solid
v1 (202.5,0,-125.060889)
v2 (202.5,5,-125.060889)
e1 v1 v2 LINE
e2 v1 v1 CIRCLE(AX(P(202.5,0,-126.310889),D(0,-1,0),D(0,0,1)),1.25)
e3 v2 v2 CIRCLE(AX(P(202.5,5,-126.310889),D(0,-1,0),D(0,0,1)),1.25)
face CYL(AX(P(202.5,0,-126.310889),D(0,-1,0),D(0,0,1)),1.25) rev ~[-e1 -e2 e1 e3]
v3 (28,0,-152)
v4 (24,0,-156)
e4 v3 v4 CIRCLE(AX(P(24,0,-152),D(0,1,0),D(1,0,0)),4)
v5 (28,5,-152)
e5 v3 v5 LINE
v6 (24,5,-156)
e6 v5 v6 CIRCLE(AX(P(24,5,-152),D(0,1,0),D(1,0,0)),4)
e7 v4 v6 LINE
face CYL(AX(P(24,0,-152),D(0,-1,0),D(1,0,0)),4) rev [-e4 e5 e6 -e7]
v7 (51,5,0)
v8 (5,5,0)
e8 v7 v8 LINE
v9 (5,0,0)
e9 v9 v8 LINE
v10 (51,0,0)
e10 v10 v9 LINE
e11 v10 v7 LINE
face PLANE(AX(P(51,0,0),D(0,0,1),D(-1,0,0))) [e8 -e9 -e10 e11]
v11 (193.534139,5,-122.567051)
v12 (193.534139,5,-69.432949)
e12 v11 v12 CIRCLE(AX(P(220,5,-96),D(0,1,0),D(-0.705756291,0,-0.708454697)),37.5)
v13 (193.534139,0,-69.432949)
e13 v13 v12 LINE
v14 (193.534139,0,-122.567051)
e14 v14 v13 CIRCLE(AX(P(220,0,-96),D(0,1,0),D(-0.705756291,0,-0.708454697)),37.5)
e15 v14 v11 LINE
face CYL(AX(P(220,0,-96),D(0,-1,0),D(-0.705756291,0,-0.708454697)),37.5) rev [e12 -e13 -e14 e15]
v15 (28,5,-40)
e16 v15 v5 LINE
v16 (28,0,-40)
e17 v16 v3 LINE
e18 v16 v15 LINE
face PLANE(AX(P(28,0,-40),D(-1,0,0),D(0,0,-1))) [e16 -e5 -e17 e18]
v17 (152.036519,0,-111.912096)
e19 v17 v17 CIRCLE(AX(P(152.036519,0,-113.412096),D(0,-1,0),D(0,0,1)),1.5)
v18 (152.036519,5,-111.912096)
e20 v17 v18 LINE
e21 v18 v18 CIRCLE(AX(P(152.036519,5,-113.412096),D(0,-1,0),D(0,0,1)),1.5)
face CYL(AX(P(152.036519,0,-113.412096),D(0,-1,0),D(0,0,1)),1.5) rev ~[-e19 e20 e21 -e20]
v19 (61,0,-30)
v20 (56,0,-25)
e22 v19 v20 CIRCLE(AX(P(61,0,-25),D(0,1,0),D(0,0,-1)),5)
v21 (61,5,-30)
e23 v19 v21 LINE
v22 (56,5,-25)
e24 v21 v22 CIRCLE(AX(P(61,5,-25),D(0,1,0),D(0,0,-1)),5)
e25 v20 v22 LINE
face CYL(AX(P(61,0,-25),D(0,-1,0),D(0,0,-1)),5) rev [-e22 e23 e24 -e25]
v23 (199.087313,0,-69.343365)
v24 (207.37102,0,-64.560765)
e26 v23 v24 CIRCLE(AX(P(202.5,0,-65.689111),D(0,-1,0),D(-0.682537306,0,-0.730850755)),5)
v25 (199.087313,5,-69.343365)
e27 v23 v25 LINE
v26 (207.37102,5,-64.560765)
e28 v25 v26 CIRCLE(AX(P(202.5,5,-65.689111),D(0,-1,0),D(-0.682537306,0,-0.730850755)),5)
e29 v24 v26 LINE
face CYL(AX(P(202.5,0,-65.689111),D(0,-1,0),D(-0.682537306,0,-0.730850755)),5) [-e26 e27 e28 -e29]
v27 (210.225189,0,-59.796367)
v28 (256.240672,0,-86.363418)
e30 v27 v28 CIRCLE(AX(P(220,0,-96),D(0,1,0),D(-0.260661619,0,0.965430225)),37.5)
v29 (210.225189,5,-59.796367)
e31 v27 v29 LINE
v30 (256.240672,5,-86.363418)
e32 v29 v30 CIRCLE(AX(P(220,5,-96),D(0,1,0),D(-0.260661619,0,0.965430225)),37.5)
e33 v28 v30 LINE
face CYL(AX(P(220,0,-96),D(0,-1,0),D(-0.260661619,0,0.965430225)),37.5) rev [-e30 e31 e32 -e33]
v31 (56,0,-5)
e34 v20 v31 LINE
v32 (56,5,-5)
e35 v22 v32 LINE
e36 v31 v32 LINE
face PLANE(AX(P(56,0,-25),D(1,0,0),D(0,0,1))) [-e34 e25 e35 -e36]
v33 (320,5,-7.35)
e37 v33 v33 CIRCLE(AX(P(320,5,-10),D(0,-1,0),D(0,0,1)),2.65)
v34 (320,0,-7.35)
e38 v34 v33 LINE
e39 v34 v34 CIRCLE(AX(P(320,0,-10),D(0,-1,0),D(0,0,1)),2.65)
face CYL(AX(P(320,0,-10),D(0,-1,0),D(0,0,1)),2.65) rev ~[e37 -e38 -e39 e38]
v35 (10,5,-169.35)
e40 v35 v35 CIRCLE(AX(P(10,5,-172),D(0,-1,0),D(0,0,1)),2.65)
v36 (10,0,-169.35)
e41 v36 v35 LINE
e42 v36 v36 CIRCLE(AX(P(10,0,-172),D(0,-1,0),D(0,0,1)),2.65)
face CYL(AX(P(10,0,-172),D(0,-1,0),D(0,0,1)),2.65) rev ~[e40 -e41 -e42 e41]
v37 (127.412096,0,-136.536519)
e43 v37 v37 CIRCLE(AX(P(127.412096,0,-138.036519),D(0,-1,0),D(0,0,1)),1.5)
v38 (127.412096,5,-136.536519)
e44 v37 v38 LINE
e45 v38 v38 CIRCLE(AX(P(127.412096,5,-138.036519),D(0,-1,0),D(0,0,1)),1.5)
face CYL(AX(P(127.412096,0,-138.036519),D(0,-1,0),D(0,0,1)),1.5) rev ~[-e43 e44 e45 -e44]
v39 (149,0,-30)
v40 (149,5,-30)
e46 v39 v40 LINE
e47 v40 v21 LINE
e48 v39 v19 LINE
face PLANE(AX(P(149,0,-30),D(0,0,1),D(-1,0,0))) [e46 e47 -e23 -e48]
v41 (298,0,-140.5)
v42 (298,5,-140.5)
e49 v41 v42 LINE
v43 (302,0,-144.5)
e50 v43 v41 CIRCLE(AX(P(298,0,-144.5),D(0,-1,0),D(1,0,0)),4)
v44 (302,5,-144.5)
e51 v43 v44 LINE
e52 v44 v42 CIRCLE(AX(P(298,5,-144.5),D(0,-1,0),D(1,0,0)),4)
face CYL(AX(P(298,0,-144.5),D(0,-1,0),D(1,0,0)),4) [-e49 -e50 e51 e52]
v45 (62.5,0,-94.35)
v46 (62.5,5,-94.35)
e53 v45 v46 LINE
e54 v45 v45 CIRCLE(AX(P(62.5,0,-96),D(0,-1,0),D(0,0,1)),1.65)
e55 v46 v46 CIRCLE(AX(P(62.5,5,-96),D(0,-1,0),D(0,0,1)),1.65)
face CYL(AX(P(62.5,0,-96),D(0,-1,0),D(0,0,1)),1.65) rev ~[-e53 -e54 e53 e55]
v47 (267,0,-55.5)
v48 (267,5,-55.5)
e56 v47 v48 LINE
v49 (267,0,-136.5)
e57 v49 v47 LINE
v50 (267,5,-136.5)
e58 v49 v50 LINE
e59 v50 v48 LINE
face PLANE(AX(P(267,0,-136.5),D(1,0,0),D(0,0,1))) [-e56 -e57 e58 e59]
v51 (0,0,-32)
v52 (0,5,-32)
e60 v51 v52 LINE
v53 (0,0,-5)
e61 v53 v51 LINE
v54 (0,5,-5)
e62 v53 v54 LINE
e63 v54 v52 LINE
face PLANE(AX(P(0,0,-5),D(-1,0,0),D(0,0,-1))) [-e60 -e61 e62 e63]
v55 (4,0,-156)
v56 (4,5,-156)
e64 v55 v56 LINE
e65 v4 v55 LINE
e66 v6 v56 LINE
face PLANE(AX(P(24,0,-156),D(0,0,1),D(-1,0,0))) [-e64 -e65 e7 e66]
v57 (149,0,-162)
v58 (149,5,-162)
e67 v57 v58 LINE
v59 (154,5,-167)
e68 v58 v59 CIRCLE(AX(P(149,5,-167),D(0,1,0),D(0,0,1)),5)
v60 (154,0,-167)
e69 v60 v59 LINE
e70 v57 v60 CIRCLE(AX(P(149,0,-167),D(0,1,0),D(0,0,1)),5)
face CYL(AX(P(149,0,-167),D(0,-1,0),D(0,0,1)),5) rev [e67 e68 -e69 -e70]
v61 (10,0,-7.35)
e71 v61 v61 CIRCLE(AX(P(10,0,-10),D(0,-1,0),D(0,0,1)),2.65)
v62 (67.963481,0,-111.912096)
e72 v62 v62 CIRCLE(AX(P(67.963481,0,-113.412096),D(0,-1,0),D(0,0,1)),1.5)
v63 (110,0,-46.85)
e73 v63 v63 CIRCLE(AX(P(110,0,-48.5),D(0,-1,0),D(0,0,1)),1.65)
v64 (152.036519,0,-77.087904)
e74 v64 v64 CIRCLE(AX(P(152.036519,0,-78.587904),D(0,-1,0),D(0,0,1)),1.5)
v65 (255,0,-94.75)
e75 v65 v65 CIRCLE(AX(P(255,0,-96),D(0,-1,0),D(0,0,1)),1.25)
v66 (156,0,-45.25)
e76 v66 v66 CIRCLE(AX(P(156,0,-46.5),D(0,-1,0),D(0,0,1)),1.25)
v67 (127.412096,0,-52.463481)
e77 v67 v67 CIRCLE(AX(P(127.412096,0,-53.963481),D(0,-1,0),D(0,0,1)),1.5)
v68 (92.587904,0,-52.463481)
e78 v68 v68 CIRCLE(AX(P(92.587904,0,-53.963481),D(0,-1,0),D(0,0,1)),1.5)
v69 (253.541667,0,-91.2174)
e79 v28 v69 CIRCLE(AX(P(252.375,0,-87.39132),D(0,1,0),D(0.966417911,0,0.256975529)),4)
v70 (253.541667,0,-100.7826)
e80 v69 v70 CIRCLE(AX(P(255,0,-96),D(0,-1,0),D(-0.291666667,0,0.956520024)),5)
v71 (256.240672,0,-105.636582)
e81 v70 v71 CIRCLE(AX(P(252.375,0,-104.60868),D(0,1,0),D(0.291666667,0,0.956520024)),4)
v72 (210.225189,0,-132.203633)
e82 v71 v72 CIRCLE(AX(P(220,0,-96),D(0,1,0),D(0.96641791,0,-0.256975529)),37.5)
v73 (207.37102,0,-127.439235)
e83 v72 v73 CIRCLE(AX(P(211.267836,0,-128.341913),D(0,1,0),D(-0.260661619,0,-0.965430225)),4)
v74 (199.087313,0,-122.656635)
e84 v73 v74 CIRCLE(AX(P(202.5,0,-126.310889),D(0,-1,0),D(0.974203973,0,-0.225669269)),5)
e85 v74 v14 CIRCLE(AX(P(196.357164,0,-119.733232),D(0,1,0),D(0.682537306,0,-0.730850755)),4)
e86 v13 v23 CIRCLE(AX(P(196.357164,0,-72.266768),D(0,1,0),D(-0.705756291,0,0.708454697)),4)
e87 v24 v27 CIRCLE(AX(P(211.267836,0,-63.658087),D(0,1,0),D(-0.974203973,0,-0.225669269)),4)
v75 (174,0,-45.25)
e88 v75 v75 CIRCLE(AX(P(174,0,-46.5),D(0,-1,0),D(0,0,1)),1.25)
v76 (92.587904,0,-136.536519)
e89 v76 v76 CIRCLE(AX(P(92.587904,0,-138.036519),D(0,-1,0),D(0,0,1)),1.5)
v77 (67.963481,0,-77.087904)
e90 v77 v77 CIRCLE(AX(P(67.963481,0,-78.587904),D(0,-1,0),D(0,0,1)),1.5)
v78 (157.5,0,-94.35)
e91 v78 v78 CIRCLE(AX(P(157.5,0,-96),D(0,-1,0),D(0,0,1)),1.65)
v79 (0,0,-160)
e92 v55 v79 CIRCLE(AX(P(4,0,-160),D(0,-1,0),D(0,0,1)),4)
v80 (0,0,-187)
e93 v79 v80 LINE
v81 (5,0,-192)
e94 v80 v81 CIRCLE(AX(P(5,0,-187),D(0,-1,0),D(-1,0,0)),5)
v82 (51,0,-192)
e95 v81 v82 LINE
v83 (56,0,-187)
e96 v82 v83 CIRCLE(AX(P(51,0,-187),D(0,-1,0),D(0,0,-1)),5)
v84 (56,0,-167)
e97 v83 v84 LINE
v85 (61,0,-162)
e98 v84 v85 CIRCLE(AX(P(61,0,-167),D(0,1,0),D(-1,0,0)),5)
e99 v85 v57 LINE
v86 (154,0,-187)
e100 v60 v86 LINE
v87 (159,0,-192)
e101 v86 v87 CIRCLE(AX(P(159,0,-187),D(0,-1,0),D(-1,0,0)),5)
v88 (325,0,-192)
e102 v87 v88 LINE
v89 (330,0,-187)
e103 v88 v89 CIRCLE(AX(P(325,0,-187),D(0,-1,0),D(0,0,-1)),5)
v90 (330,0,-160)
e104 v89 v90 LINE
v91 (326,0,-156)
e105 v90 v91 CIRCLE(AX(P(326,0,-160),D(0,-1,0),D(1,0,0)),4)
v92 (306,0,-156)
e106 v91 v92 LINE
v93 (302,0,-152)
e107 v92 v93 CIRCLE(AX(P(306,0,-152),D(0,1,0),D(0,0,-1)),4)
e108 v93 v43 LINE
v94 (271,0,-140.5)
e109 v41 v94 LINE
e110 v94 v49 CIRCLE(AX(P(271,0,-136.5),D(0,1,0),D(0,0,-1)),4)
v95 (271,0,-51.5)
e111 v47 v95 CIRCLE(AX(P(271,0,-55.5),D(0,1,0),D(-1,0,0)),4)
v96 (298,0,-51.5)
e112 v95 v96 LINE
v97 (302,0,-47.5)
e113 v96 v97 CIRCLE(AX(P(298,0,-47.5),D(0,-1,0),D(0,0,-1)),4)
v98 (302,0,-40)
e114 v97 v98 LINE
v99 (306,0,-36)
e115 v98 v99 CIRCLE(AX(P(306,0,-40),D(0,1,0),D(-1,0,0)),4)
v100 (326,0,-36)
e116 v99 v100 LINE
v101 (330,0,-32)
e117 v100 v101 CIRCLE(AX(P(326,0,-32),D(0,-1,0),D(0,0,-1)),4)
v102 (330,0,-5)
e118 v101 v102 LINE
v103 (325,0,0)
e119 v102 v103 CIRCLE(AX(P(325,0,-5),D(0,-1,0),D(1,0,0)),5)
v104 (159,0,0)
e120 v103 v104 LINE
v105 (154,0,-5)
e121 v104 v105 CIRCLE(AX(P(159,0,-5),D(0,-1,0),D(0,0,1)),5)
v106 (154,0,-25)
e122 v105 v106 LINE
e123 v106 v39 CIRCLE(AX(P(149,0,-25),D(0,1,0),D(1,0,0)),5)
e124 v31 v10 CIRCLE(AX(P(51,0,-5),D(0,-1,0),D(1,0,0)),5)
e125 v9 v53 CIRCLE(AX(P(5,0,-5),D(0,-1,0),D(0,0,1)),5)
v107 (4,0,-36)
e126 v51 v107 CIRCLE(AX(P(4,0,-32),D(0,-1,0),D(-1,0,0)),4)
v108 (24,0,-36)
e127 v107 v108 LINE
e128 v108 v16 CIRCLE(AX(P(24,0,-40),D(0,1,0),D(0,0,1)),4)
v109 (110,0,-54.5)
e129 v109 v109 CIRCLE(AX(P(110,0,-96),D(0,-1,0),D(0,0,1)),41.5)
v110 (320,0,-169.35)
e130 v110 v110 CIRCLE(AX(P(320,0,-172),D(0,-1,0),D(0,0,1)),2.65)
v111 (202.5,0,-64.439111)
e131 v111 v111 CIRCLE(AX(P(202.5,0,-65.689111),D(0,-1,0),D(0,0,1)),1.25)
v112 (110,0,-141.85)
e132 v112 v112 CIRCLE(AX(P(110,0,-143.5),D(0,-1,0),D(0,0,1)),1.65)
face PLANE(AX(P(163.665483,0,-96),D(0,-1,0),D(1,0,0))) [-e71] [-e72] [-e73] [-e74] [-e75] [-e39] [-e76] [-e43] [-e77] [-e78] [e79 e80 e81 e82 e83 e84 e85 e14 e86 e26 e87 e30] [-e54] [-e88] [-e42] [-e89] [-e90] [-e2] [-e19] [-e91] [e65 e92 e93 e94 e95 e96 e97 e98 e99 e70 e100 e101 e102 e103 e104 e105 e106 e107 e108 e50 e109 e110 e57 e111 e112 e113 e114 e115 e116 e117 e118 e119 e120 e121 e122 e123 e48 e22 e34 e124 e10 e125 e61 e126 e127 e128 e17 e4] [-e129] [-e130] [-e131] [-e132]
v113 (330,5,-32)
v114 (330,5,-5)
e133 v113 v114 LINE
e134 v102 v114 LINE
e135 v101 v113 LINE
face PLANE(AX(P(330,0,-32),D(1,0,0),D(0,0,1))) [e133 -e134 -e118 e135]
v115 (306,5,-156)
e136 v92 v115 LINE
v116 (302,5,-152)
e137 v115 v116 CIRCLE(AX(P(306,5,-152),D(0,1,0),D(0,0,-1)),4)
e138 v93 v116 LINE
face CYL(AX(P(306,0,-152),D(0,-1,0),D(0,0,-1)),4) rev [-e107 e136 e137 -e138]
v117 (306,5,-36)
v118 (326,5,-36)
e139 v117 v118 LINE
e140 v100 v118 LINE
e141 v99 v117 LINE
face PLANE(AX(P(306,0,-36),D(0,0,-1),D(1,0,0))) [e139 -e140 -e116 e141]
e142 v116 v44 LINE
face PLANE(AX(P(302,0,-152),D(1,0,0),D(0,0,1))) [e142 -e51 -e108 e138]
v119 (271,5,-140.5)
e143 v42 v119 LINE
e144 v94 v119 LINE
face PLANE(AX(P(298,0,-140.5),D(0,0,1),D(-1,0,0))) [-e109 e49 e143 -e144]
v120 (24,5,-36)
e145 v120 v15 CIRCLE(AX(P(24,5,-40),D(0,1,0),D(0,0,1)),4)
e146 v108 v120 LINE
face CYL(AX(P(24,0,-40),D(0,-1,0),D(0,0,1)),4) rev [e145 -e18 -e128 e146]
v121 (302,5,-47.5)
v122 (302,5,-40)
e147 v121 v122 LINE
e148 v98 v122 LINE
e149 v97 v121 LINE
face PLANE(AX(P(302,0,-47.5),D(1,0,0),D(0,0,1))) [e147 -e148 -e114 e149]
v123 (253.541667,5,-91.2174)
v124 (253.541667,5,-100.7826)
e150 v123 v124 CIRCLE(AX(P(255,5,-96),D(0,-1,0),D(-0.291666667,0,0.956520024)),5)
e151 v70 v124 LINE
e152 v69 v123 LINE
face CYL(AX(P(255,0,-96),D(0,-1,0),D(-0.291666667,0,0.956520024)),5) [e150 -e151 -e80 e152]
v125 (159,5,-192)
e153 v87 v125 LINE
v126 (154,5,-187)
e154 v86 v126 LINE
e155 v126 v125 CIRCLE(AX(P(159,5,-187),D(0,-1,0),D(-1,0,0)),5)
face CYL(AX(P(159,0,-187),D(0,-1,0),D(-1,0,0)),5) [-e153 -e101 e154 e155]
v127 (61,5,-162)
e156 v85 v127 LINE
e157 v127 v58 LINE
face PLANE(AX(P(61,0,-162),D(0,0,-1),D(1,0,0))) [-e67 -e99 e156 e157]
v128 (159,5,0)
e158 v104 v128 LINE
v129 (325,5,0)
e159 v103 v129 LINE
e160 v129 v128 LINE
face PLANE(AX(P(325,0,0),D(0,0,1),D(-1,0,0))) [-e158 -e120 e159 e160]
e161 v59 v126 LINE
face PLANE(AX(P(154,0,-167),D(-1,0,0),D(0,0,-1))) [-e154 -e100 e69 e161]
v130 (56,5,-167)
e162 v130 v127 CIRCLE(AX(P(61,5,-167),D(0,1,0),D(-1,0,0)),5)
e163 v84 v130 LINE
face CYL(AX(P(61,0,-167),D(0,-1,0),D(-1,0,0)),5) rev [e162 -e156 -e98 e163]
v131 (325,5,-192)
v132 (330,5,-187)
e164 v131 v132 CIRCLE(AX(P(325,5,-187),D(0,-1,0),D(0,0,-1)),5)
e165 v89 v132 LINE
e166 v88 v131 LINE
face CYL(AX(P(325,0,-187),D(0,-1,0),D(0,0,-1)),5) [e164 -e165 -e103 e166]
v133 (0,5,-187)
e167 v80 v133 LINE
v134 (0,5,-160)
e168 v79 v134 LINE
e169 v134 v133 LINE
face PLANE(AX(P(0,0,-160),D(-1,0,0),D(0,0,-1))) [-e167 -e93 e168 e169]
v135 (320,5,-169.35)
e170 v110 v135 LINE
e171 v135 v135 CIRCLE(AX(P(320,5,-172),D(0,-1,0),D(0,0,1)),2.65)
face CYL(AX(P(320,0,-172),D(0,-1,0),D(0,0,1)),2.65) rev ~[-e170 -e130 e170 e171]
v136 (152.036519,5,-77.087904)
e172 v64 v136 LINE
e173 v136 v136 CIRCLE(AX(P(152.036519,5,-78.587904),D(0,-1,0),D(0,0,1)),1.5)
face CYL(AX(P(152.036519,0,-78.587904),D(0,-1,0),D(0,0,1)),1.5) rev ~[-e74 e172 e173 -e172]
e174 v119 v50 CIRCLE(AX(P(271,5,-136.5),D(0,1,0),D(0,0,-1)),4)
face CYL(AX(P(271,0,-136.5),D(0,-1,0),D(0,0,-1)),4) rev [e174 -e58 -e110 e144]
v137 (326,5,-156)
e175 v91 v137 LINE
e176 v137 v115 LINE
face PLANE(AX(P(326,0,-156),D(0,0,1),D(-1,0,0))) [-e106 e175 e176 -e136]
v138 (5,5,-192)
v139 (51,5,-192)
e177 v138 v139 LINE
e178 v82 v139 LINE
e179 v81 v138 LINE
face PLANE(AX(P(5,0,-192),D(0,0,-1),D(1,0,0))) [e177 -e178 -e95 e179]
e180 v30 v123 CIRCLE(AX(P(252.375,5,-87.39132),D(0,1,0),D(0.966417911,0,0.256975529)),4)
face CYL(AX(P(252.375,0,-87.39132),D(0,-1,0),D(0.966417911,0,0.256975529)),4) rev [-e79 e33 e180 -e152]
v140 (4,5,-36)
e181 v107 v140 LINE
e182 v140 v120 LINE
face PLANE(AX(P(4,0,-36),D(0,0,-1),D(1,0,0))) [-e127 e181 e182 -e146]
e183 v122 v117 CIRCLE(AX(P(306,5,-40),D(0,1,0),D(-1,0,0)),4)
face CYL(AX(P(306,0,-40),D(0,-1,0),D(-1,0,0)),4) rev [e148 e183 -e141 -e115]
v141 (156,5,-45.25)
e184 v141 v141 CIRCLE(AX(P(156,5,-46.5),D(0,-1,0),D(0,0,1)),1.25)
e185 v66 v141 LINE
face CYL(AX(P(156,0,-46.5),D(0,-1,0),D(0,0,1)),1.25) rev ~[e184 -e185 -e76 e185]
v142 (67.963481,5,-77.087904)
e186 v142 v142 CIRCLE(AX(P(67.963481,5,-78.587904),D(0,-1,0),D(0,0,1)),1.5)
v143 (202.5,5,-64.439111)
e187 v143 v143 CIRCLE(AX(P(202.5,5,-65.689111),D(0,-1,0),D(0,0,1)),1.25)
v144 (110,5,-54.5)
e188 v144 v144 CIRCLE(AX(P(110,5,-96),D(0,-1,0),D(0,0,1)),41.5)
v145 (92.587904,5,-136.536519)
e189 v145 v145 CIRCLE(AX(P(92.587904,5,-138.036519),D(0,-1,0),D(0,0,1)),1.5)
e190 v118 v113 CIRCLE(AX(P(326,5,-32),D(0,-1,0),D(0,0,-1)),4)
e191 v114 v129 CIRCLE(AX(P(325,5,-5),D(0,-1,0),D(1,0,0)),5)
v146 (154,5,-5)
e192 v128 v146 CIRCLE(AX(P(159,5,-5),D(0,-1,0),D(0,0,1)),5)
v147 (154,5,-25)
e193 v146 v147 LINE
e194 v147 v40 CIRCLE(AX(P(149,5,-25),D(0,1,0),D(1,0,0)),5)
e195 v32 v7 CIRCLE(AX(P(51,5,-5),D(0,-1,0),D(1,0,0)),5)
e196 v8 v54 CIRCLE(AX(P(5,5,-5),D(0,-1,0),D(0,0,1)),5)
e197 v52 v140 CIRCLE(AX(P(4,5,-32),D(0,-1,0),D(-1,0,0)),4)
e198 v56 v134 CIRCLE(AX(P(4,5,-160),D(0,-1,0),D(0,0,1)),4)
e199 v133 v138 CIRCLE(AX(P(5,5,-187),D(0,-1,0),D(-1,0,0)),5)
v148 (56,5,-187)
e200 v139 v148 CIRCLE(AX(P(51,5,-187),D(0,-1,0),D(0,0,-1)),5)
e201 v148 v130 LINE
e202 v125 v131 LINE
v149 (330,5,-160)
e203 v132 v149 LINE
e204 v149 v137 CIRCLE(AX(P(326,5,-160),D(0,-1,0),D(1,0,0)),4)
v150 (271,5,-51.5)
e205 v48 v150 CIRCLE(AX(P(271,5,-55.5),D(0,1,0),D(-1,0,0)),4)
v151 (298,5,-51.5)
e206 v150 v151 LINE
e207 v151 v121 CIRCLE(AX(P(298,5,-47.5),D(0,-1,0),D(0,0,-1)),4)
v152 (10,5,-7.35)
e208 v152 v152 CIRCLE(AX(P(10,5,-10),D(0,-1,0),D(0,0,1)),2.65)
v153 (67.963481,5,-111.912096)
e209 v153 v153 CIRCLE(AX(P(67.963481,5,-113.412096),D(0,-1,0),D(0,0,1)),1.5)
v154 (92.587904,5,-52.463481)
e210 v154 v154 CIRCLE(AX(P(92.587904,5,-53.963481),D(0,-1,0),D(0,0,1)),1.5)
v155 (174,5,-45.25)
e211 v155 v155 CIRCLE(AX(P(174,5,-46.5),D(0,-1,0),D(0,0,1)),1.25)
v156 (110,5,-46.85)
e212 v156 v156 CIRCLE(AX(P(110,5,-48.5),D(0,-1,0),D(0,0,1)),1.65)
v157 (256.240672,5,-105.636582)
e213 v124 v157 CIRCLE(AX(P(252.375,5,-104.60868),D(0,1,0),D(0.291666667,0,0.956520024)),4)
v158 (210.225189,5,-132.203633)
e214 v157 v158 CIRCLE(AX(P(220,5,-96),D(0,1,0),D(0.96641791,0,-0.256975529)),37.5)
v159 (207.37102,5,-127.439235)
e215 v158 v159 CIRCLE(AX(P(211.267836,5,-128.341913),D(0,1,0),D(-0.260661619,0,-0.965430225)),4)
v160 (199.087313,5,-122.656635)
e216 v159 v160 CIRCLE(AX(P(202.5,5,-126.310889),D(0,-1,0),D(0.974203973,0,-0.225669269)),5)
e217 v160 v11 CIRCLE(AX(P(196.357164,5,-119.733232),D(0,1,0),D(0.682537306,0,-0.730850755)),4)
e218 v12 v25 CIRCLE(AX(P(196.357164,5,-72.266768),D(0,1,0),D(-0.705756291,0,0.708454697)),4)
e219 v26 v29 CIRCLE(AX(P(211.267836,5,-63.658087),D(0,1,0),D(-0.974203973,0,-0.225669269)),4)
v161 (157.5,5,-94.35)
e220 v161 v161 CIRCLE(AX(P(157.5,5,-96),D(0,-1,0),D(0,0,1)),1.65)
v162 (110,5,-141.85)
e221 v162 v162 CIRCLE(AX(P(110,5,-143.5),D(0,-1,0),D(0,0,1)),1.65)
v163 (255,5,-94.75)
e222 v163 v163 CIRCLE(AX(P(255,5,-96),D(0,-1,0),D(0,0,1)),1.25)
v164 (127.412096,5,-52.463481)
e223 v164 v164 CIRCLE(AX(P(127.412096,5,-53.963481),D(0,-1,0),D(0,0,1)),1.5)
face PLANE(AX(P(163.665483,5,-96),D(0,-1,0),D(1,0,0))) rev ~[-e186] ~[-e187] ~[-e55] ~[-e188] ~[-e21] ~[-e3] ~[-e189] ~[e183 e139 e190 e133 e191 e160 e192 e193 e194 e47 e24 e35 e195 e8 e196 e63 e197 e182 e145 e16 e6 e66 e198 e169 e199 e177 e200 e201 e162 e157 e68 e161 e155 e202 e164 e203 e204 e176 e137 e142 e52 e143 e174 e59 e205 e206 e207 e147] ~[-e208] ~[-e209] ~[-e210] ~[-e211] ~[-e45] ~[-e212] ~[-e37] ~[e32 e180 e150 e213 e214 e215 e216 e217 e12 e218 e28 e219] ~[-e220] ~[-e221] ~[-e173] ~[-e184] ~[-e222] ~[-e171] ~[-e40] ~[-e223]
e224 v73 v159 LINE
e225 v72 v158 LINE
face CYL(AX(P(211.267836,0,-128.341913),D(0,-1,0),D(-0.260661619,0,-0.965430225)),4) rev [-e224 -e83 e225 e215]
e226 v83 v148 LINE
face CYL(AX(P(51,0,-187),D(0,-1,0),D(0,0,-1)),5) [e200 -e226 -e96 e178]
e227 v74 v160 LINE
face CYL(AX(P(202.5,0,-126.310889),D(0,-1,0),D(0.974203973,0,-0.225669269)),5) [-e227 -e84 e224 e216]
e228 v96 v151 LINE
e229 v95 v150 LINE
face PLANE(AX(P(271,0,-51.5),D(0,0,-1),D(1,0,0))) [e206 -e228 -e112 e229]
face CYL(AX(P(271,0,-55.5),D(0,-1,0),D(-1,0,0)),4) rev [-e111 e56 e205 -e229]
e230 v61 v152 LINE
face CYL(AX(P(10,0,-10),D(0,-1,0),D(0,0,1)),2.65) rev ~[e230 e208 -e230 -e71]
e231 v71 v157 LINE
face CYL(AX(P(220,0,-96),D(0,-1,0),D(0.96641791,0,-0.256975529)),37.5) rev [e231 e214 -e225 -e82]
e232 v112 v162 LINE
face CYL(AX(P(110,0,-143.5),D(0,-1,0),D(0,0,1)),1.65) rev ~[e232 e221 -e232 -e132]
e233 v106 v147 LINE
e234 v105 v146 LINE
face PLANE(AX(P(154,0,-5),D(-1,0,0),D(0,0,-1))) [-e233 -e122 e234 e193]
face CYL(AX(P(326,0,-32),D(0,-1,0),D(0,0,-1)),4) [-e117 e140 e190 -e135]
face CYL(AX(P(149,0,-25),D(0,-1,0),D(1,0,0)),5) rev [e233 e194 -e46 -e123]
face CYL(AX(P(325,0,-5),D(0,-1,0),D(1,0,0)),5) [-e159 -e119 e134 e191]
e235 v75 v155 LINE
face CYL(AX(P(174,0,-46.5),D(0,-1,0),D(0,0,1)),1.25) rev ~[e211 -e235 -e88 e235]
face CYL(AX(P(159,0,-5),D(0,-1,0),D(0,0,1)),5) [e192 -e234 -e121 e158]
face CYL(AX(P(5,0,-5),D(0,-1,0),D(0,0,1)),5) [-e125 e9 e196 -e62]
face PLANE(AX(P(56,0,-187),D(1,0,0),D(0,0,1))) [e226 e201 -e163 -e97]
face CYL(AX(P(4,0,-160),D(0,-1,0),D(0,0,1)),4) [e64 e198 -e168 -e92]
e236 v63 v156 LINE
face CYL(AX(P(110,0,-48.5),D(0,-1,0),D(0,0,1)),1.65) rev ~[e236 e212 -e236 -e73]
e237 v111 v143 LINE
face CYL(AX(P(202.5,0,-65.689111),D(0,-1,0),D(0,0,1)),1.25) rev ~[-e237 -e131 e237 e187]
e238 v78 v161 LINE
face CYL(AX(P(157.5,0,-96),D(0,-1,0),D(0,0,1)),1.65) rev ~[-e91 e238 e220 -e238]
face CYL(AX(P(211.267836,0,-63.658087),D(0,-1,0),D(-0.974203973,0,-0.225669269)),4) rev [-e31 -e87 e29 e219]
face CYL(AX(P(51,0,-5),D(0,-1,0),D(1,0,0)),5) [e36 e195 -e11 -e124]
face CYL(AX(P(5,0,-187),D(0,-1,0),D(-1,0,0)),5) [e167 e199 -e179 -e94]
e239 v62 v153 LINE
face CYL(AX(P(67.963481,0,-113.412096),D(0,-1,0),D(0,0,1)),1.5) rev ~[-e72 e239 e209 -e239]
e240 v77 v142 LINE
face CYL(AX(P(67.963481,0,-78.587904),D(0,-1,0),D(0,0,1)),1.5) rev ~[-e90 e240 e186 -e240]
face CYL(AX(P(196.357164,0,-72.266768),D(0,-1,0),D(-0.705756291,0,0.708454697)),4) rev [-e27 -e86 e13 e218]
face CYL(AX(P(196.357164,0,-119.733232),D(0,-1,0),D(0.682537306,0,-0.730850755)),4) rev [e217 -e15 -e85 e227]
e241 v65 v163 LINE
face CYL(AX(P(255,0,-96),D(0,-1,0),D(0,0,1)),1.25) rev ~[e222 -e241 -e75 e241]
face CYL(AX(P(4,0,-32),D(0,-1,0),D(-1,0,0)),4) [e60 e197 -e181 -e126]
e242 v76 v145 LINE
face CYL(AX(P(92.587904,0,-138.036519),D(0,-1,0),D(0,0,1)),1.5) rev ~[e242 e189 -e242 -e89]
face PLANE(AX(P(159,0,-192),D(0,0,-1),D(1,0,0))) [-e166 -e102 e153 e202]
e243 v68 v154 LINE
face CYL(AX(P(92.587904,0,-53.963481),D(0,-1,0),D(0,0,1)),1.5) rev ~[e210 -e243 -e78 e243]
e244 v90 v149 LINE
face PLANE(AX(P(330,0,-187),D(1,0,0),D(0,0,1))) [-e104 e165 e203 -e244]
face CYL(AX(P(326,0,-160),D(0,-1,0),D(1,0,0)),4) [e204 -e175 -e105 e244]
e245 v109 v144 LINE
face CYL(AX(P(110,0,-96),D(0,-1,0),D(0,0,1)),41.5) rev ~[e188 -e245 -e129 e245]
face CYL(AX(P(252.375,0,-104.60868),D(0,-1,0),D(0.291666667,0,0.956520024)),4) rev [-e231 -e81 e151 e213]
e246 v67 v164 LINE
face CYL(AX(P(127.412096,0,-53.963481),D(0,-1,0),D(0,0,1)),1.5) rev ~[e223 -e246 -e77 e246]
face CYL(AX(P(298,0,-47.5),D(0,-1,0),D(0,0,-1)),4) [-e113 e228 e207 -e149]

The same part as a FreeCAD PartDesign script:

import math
import FreeCAD as App
import Part
import Sketcher

V = App.Vector

doc = App.newDocument("Part")
body = doc.addObject("PartDesign::Body", "Body")

sketch1 = body.newObject("Sketcher::SketchObject", "Sketch")
sketch1.AttachmentSupport = (doc.getObject("XZ_Plane"), [""])
sketch1.MapMode = "FlatFace"
sketch1.addGeometry(Part.LineSegment(V(159, -192, 0), V(325, -192, 0)), False)
sketch1.addGeometry(Part.ArcOfCircle(Part.Circle(V(325, -187, 0), V(0, 0, 1), 5), math.radians(-90), math.radians(0)), False)
sketch1.addGeometry(Part.LineSegment(V(330, -187, 0), V(330, -160, 0)), False)
sketch1.addGeometry(Part.ArcOfCircle(Part.Circle(V(326, -160, 0), V(0, 0, 1), 4), math.radians(0), math.radians(90)), False)
sketch1.addGeometry(Part.LineSegment(V(326, -156, 0), V(306, -156, 0)), False)
sketch1.addGeometry(Part.ArcOfCircle(Part.Circle(V(306, -152, 0), V(0, 0, 1), 4), math.radians(180), math.radians(270)), False)
sketch1.addGeometry(Part.LineSegment(V(302, -152, 0), V(302, -144.5, 0)), False)
sketch1.addGeometry(Part.ArcOfCircle(Part.Circle(V(298, -144.5, 0), V(0, 0, 1), 4), math.radians(0), math.radians(90)), False)
sketch1.addGeometry(Part.LineSegment(V(298, -140.5, 0), V(271, -140.5, 0)), False)
sketch1.addGeometry(Part.ArcOfCircle(Part.Circle(V(271, -136.5, 0), V(0, 0, 1), 4), math.radians(180), math.radians(270)), False)
sketch1.addGeometry(Part.LineSegment(V(267, -136.5, 0), V(267, -55.5, 0)), False)
sketch1.addGeometry(Part.ArcOfCircle(Part.Circle(V(271, -55.5, 0), V(0, 0, 1), 4), math.radians(90), math.radians(180)), False)
sketch1.addGeometry(Part.LineSegment(V(271, -51.5, 0), V(298, -51.5, 0)), False)
sketch1.addGeometry(Part.ArcOfCircle(Part.Circle(V(298, -47.5, 0), V(0, 0, 1), 4), math.radians(-90), math.radians(0)), False)
sketch1.addGeometry(Part.LineSegment(V(302, -47.5, 0), V(302, -40, 0)), False)
sketch1.addGeometry(Part.ArcOfCircle(Part.Circle(V(306, -40, 0), V(0, 0, 1), 4), math.radians(90), math.radians(180)), False)
sketch1.addGeometry(Part.LineSegment(V(306, -36, 0), V(326, -36, 0)), False)
sketch1.addGeometry(Part.ArcOfCircle(Part.Circle(V(326, -32, 0), V(0, 0, 1), 4), math.radians(-90), math.radians(0)), False)
sketch1.addGeometry(Part.LineSegment(V(330, -32, 0), V(330, -5, 0)), False)
sketch1.addGeometry(Part.ArcOfCircle(Part.Circle(V(325, -5, 0), V(0, 0, 1), 5), math.radians(0), math.radians(90)), False)
sketch1.addGeometry(Part.LineSegment(V(325, 0, 0), V(159, 0, 0)), False)
sketch1.addGeometry(Part.ArcOfCircle(Part.Circle(V(159, -5, 0), V(0, 0, 1), 5), math.radians(90), math.radians(180)), False)
sketch1.addGeometry(Part.LineSegment(V(154, -5, 0), V(154, -25, 0)), False)
sketch1.addGeometry(Part.ArcOfCircle(Part.Circle(V(149, -25, 0), V(0, 0, 1), 5), math.radians(-90), math.radians(0)), False)
sketch1.addGeometry(Part.LineSegment(V(149, -30, 0), V(61, -30, 0)), False)
sketch1.addGeometry(Part.ArcOfCircle(Part.Circle(V(61, -25, 0), V(0, 0, 1), 5), math.radians(180), math.radians(270)), False)
sketch1.addGeometry(Part.LineSegment(V(56, -25, 0), V(56, -5, 0)), False)
sketch1.addGeometry(Part.ArcOfCircle(Part.Circle(V(51, -5, 0), V(0, 0, 1), 5), math.radians(0), math.radians(90)), False)
sketch1.addGeometry(Part.LineSegment(V(51, 0, 0), V(5, 0, 0)), False)
sketch1.addGeometry(Part.ArcOfCircle(Part.Circle(V(5, -5, 0), V(0, 0, 1), 5), math.radians(90), math.radians(180)), False)
sketch1.addGeometry(Part.LineSegment(V(0, -5, 0), V(0, -32, 0)), False)
sketch1.addGeometry(Part.ArcOfCircle(Part.Circle(V(4, -32, 0), V(0, 0, 1), 4), math.radians(180), math.radians(270)), False)
sketch1.addGeometry(Part.LineSegment(V(4, -36, 0), V(24, -36, 0)), False)
sketch1.addGeometry(Part.ArcOfCircle(Part.Circle(V(24, -40, 0), V(0, 0, 1), 4), math.radians(0), math.radians(90)), False)
sketch1.addGeometry(Part.LineSegment(V(28, -40, 0), V(28, -152, 0)), False)
sketch1.addGeometry(Part.ArcOfCircle(Part.Circle(V(24, -152, 0), V(0, 0, 1), 4), math.radians(-90), math.radians(0)), False)
sketch1.addGeometry(Part.LineSegment(V(24, -156, 0), V(4, -156, 0)), False)
sketch1.addGeometry(Part.ArcOfCircle(Part.Circle(V(4, -160, 0), V(0, 0, 1), 4), math.radians(90), math.radians(180)), False)
sketch1.addGeometry(Part.LineSegment(V(0, -160, 0), V(0, -187, 0)), False)
sketch1.addGeometry(Part.ArcOfCircle(Part.Circle(V(5, -187, 0), V(0, 0, 1), 5), math.radians(180), math.radians(270)), False)
sketch1.addGeometry(Part.LineSegment(V(5, -192, 0), V(51, -192, 0)), False)
sketch1.addGeometry(Part.ArcOfCircle(Part.Circle(V(51, -187, 0), V(0, 0, 1), 5), math.radians(-90), math.radians(0)), False)
sketch1.addGeometry(Part.LineSegment(V(56, -187, 0), V(56, -167, 0)), False)
sketch1.addGeometry(Part.ArcOfCircle(Part.Circle(V(61, -167, 0), V(0, 0, 1), 5), math.radians(90), math.radians(180)), False)
sketch1.addGeometry(Part.LineSegment(V(61, -162, 0), V(149, -162, 0)), False)
sketch1.addGeometry(Part.ArcOfCircle(Part.Circle(V(149, -167, 0), V(0, 0, 1), 5), math.radians(0), math.radians(90)), False)
sketch1.addGeometry(Part.LineSegment(V(154, -167, 0), V(154, -187, 0)), False)
sketch1.addGeometry(Part.ArcOfCircle(Part.Circle(V(159, -187, 0), V(0, 0, 1), 5), math.radians(180), math.radians(270)), False)
sketch1.addGeometry(Part.Circle(V(10, -172, 0), V(0, 0, 1), 2.6), False)
sketch1.addGeometry(Part.Circle(V(110, -143.5, 0), V(0, 0, 1), 1.6), False)
sketch1.addGeometry(Part.Circle(V(92.6, -138, 0), V(0, 0, 1), 1.5), False)
sketch1.addGeometry(Part.Circle(V(127.4, -138, 0), V(0, 0, 1), 1.5), False)
sketch1.addGeometry(Part.Circle(V(68, -113.4, 0), V(0, 0, 1), 1.5), False)
sketch1.addGeometry(Part.Circle(V(62.5, -96, 0), V(0, 0, 1), 1.6), False)
sketch1.addGeometry(Part.Circle(V(152, -113.4, 0), V(0, 0, 1), 1.5), False)
sketch1.addGeometry(Part.Circle(V(110, -96, 0), V(0, 0, 1), 41.5), False)
sketch1.addGeometry(Part.Circle(V(157.5, -96, 0), V(0, 0, 1), 1.6), False)
sketch1.addGeometry(Part.Circle(V(320, -172, 0), V(0, 0, 1), 2.6), False)
sketch1.addGeometry(Part.Circle(V(202.5, -126.3, 0), V(0, 0, 1), 1.2), False)
sketch1.addGeometry(Part.ArcOfCircle(Part.Circle(V(211.3, -63.7, 0), V(0, 0, 1), 4), math.radians(105), math.radians(193)), False)
sketch1.addGeometry(Part.ArcOfCircle(Part.Circle(V(220, -96, 0), V(0, 0, 1), 37.5), math.radians(15), math.radians(105)), False)
sketch1.addGeometry(Part.ArcOfCircle(Part.Circle(V(252.4, -87.4, 0), V(0, 0, 1), 4), math.radians(-73), math.radians(15)), False)
sketch1.addGeometry(Part.ArcOfCircle(Part.Circle(V(255, -96, 0), V(0, 0, 1), 5), math.radians(107), math.radians(253)), False)
sketch1.addGeometry(Part.ArcOfCircle(Part.Circle(V(252.4, -104.6, 0), V(0, 0, 1), 4), math.radians(-15), math.radians(73)), False)
sketch1.addGeometry(Part.ArcOfCircle(Part.Circle(V(220, -96, 0), V(0, 0, 1), 37.5), math.radians(-105), math.radians(-15)), False)
sketch1.addGeometry(Part.ArcOfCircle(Part.Circle(V(211.3, -128.3, 0), V(0, 0, 1), 4), math.radians(167), math.radians(255)), False)
sketch1.addGeometry(Part.ArcOfCircle(Part.Circle(V(202.5, -126.3, 0), V(0, 0, 1), 5), math.radians(-13), math.radians(133)), False)
sketch1.addGeometry(Part.ArcOfCircle(Part.Circle(V(196.4, -119.7, 0), V(0, 0, 1), 4), math.radians(-135), math.radians(-47)), False)
sketch1.addGeometry(Part.ArcOfCircle(Part.Circle(V(220, -96, 0), V(0, 0, 1), 37.5), math.radians(135), math.radians(225)), False)
sketch1.addGeometry(Part.ArcOfCircle(Part.Circle(V(196.4, -72.3, 0), V(0, 0, 1), 4), math.radians(47), math.radians(135)), False)
sketch1.addGeometry(Part.ArcOfCircle(Part.Circle(V(202.5, -65.7, 0), V(0, 0, 1), 5), math.radians(-133), math.radians(13)), False)
sketch1.addGeometry(Part.Circle(V(255, -96, 0), V(0, 0, 1), 1.2), False)
sketch1.addGeometry(Part.Circle(V(68, -78.6, 0), V(0, 0, 1), 1.5), False)
sketch1.addGeometry(Part.Circle(V(152, -78.6, 0), V(0, 0, 1), 1.5), False)
sketch1.addGeometry(Part.Circle(V(92.6, -54, 0), V(0, 0, 1), 1.5), False)
sketch1.addGeometry(Part.Circle(V(127.4, -54, 0), V(0, 0, 1), 1.5), False)
sketch1.addGeometry(Part.Circle(V(10, -10, 0), V(0, 0, 1), 2.6), False)
sketch1.addGeometry(Part.Circle(V(110, -48.5, 0), V(0, 0, 1), 1.6), False)
sketch1.addGeometry(Part.Circle(V(156, -46.5, 0), V(0, 0, 1), 1.2), False)
sketch1.addGeometry(Part.Circle(V(202.5, -65.7, 0), V(0, 0, 1), 1.2), False)
sketch1.addGeometry(Part.Circle(V(174, -46.5, 0), V(0, 0, 1), 1.2), False)
sketch1.addGeometry(Part.Circle(V(320, -10, 0), V(0, 0, 1), 2.6), False)
sketch1.addConstraint(Sketcher.Constraint("Tangent", 0, 2, 1, 1))
sketch1.addConstraint(Sketcher.Constraint("Tangent", 1, 2, 2, 1))
sketch1.addConstraint(Sketcher.Constraint("Tangent", 2, 2, 3, 1))
sketch1.addConstraint(Sketcher.Constraint("Tangent", 3, 2, 4, 1))
sketch1.addConstraint(Sketcher.Constraint("Tangent", 4, 2, 5, 2))
sketch1.addConstraint(Sketcher.Constraint("Tangent", 5, 1, 6, 1))
sketch1.addConstraint(Sketcher.Constraint("Tangent", 6, 2, 7, 1))
sketch1.addConstraint(Sketcher.Constraint("Tangent", 7, 2, 8, 1))
sketch1.addConstraint(Sketcher.Constraint("Tangent", 8, 2, 9, 2))
sketch1.addConstraint(Sketcher.Constraint("Tangent", 9, 1, 10, 1))
sketch1.addConstraint(Sketcher.Constraint("Tangent", 10, 2, 11, 2))
sketch1.addConstraint(Sketcher.Constraint("Tangent", 11, 1, 12, 1))
sketch1.addConstraint(Sketcher.Constraint("Tangent", 12, 2, 13, 1))
sketch1.addConstraint(Sketcher.Constraint("Tangent", 13, 2, 14, 1))
sketch1.addConstraint(Sketcher.Constraint("Tangent", 14, 2, 15, 2))
sketch1.addConstraint(Sketcher.Constraint("Tangent", 15, 1, 16, 1))
sketch1.addConstraint(Sketcher.Constraint("Tangent", 16, 2, 17, 1))
sketch1.addConstraint(Sketcher.Constraint("Tangent", 17, 2, 18, 1))
sketch1.addConstraint(Sketcher.Constraint("Tangent", 18, 2, 19, 1))
sketch1.addConstraint(Sketcher.Constraint("Tangent", 19, 2, 20, 1))
sketch1.addConstraint(Sketcher.Constraint("Tangent", 20, 2, 21, 1))
sketch1.addConstraint(Sketcher.Constraint("Tangent", 21, 2, 22, 1))
sketch1.addConstraint(Sketcher.Constraint("Tangent", 22, 2, 23, 2))
sketch1.addConstraint(Sketcher.Constraint("Tangent", 23, 1, 24, 1))
sketch1.addConstraint(Sketcher.Constraint("Tangent", 24, 2, 25, 2))
sketch1.addConstraint(Sketcher.Constraint("Tangent", 25, 1, 26, 1))
sketch1.addConstraint(Sketcher.Constraint("Tangent", 26, 2, 27, 1))
sketch1.addConstraint(Sketcher.Constraint("Tangent", 27, 2, 28, 1))
sketch1.addConstraint(Sketcher.Constraint("Tangent", 28, 2, 29, 1))
sketch1.addConstraint(Sketcher.Constraint("Tangent", 29, 2, 30, 1))
sketch1.addConstraint(Sketcher.Constraint("Tangent", 30, 2, 31, 1))
sketch1.addConstraint(Sketcher.Constraint("Tangent", 31, 2, 32, 1))
sketch1.addConstraint(Sketcher.Constraint("Tangent", 32, 2, 33, 2))
sketch1.addConstraint(Sketcher.Constraint("Tangent", 33, 1, 34, 1))
sketch1.addConstraint(Sketcher.Constraint("Tangent", 34, 2, 35, 2))
sketch1.addConstraint(Sketcher.Constraint("Tangent", 35, 1, 36, 1))
sketch1.addConstraint(Sketcher.Constraint("Tangent", 36, 2, 37, 1))
sketch1.addConstraint(Sketcher.Constraint("Tangent", 37, 2, 38, 1))
sketch1.addConstraint(Sketcher.Constraint("Tangent", 38, 2, 39, 1))
sketch1.addConstraint(Sketcher.Constraint("Tangent", 39, 2, 40, 1))
sketch1.addConstraint(Sketcher.Constraint("Tangent", 40, 2, 41, 1))
sketch1.addConstraint(Sketcher.Constraint("Tangent", 41, 2, 42, 1))
sketch1.addConstraint(Sketcher.Constraint("Tangent", 42, 2, 43, 2))
sketch1.addConstraint(Sketcher.Constraint("Tangent", 43, 1, 44, 1))
sketch1.addConstraint(Sketcher.Constraint("Tangent", 44, 2, 45, 2))
sketch1.addConstraint(Sketcher.Constraint("Tangent", 45, 1, 46, 1))
sketch1.addConstraint(Sketcher.Constraint("Tangent", 46, 2, 47, 1))
sketch1.addConstraint(Sketcher.Constraint("Tangent", 47, 2, 0, 1))
sketch1.addConstraint(Sketcher.Constraint("Tangent", 59, 1, 60, 2))
sketch1.addConstraint(Sketcher.Constraint("Tangent", 60, 1, 61, 2))
sketch1.addConstraint(Sketcher.Constraint("Tangent", 61, 1, 62, 1))
sketch1.addConstraint(Sketcher.Constraint("Tangent", 62, 2, 63, 2))
sketch1.addConstraint(Sketcher.Constraint("Tangent", 63, 1, 64, 2))
sketch1.addConstraint(Sketcher.Constraint("Tangent", 64, 1, 65, 2))
sketch1.addConstraint(Sketcher.Constraint("Tangent", 65, 1, 66, 1))
sketch1.addConstraint(Sketcher.Constraint("Tangent", 66, 2, 67, 2))
sketch1.addConstraint(Sketcher.Constraint("Tangent", 67, 1, 68, 2))
sketch1.addConstraint(Sketcher.Constraint("Tangent", 68, 1, 69, 2))
sketch1.addConstraint(Sketcher.Constraint("Tangent", 69, 1, 70, 1))
sketch1.addConstraint(Sketcher.Constraint("Tangent", 70, 2, 59, 2))
sketch1.addConstraint(Sketcher.Constraint("Horizontal", 0))
sketch1.addConstraint(Sketcher.Constraint("Vertical", 2))
sketch1.addConstraint(Sketcher.Constraint("Horizontal", 4))
sketch1.addConstraint(Sketcher.Constraint("Vertical", 6))
sketch1.addConstraint(Sketcher.Constraint("Horizontal", 8))
sketch1.addConstraint(Sketcher.Constraint("Vertical", 10))
sketch1.addConstraint(Sketcher.Constraint("Horizontal", 12))
sketch1.addConstraint(Sketcher.Constraint("Vertical", 14))
sketch1.addConstraint(Sketcher.Constraint("Horizontal", 16))
sketch1.addConstraint(Sketcher.Constraint("Vertical", 18))
sketch1.addConstraint(Sketcher.Constraint("Horizontal", 20))
sketch1.addConstraint(Sketcher.Constraint("Vertical", 22))
sketch1.addConstraint(Sketcher.Constraint("Horizontal", 24))
sketch1.addConstraint(Sketcher.Constraint("Vertical", 26))
sketch1.addConstraint(Sketcher.Constraint("Horizontal", 28))
sketch1.addConstraint(Sketcher.Constraint("Vertical", 30))
sketch1.addConstraint(Sketcher.Constraint("Horizontal", 32))
sketch1.addConstraint(Sketcher.Constraint("Vertical", 34))
sketch1.addConstraint(Sketcher.Constraint("Horizontal", 36))
sketch1.addConstraint(Sketcher.Constraint("Vertical", 38))
sketch1.addConstraint(Sketcher.Constraint("Horizontal", 40))
sketch1.addConstraint(Sketcher.Constraint("Vertical", 42))
sketch1.addConstraint(Sketcher.Constraint("Horizontal", 44))
sketch1.addConstraint(Sketcher.Constraint("Vertical", 46))
sketch1.addConstraint(Sketcher.Constraint("Coincident", 64, 3, 60, 3))
sketch1.addConstraint(Sketcher.Constraint("Coincident", 66, 3, 58, 3))
sketch1.addConstraint(Sketcher.Constraint("Coincident", 68, 3, 60, 3))
sketch1.addConstraint(Sketcher.Constraint("Coincident", 71, 3, 62, 3))
sketch1.addConstraint(Sketcher.Constraint("Coincident", 79, 3, 70, 3))
sketch1.addConstraint(Sketcher.Constraint("Equal", 3, 5))
sketch1.addConstraint(Sketcher.Constraint("Equal", 5, 7))
sketch1.addConstraint(Sketcher.Constraint("Equal", 7, 9))
sketch1.addConstraint(Sketcher.Constraint("Equal", 9, 11))
sketch1.addConstraint(Sketcher.Constraint("Equal", 11, 13))
sketch1.addConstraint(Sketcher.Constraint("Equal", 13, 15))
sketch1.addConstraint(Sketcher.Constraint("Equal", 15, 17))
sketch1.addConstraint(Sketcher.Constraint("Equal", 1, 19))
sketch1.addConstraint(Sketcher.Constraint("Equal", 19, 21))
sketch1.addConstraint(Sketcher.Constraint("Equal", 21, 23))
sketch1.addConstraint(Sketcher.Constraint("Equal", 23, 25))
sketch1.addConstraint(Sketcher.Constraint("Equal", 25, 27))
sketch1.addConstraint(Sketcher.Constraint("Equal", 27, 29))
sketch1.addConstraint(Sketcher.Constraint("Equal", 17, 31))
sketch1.addConstraint(Sketcher.Constraint("Equal", 31, 33))
sketch1.addConstraint(Sketcher.Constraint("Equal", 33, 35))
sketch1.addConstraint(Sketcher.Constraint("Equal", 35, 37))
sketch1.addConstraint(Sketcher.Constraint("Equal", 29, 39))
sketch1.addConstraint(Sketcher.Constraint("Equal", 39, 41))
sketch1.addConstraint(Sketcher.Constraint("Equal", 41, 43))
sketch1.addConstraint(Sketcher.Constraint("Equal", 43, 45))
sketch1.addConstraint(Sketcher.Constraint("Equal", 45, 47))
sketch1.addConstraint(Sketcher.Constraint("Equal", 50, 51))
sketch1.addConstraint(Sketcher.Constraint("Equal", 51, 52))
sketch1.addConstraint(Sketcher.Constraint("Equal", 49, 53))
sketch1.addConstraint(Sketcher.Constraint("Equal", 52, 54))
sketch1.addConstraint(Sketcher.Constraint("Equal", 53, 56))
sketch1.addConstraint(Sketcher.Constraint("Equal", 48, 57))
sketch1.addConstraint(Sketcher.Constraint("Equal", 37, 59))
sketch1.addConstraint(Sketcher.Constraint("Equal", 59, 61))
sketch1.addConstraint(Sketcher.Constraint("Equal", 47, 62))
sketch1.addConstraint(Sketcher.Constraint("Equal", 61, 63))
sketch1.addConstraint(Sketcher.Constraint("Equal", 60, 64))
sketch1.addConstraint(Sketcher.Constraint("Equal", 63, 65))
sketch1.addConstraint(Sketcher.Constraint("Equal", 62, 66))
sketch1.addConstraint(Sketcher.Constraint("Equal", 65, 67))
sketch1.addConstraint(Sketcher.Constraint("Equal", 64, 68))
sketch1.addConstraint(Sketcher.Constraint("Equal", 67, 69))
sketch1.addConstraint(Sketcher.Constraint("Equal", 66, 70))
sketch1.addConstraint(Sketcher.Constraint("Equal", 58, 71))
sketch1.addConstraint(Sketcher.Constraint("Equal", 54, 72))
sketch1.addConstraint(Sketcher.Constraint("Equal", 72, 73))
sketch1.addConstraint(Sketcher.Constraint("Equal", 73, 74))
sketch1.addConstraint(Sketcher.Constraint("Equal", 74, 75))
sketch1.addConstraint(Sketcher.Constraint("Equal", 57, 76))
sketch1.addConstraint(Sketcher.Constraint("Equal", 56, 77))
sketch1.addConstraint(Sketcher.Constraint("Equal", 71, 78))
sketch1.addConstraint(Sketcher.Constraint("Equal", 78, 79))
sketch1.addConstraint(Sketcher.Constraint("Equal", 79, 80))
sketch1.addConstraint(Sketcher.Constraint("Equal", 76, 81))
sketch1.addConstraint(Sketcher.Constraint("PointOnObject", 19, 2, -1))
sketch1.addConstraint(Sketcher.Constraint("PointOnObject", 27, 2, -1))
sketch1.addConstraint(Sketcher.Constraint("PointOnObject", 29, 2, -2))
sketch1.addConstraint(Sketcher.Constraint("PointOnObject", 37, 2, -2))
sketch1.addConstraint(Sketcher.Constraint("Horizontal", 17, 3, 31, 3))
sketch1.addConstraint(Sketcher.Constraint("Horizontal", 5, 3, 35, 3))
sketch1.addConstraint(Sketcher.Constraint("Horizontal", 1, 3, 39, 3))
sketch1.addConstraint(Sketcher.Constraint("Horizontal", 50, 3, 51, 3))
sketch1.addConstraint(Sketcher.Constraint("Horizontal", 52, 3, 54, 3))
sketch1.addConstraint(Sketcher.Constraint("Horizontal", 53, 3, 55, 3))
sketch1.addConstraint(Sketcher.Constraint("Horizontal", 55, 3, 56, 3))
sketch1.addConstraint(Sketcher.Constraint("Horizontal", 48, 3, 57, 3))
sketch1.addConstraint(Sketcher.Constraint("Horizontal", 56, 3, 60, 3))
sketch1.addConstraint(Sketcher.Constraint("Horizontal", 60, 3, 62, 3))
sketch1.addConstraint(Sketcher.Constraint("Horizontal", 72, 3, 73, 3))
sketch1.addConstraint(Sketcher.Constraint("Horizontal", 74, 3, 75, 3))
sketch1.addConstraint(Sketcher.Constraint("Horizontal", 78, 3, 80, 3))
sketch1.addConstraint(Sketcher.Constraint("Horizontal", 76, 3, 81, 3))
sketch1.addConstraint(Sketcher.Constraint("Vertical", 7, 3, 13, 3))
sketch1.addConstraint(Sketcher.Constraint("Vertical", 3, 3, 17, 3))
sketch1.addConstraint(Sketcher.Constraint("Vertical", 27, 3, 41, 3))
sketch1.addConstraint(Sketcher.Constraint("Vertical", 23, 3, 45, 3))
sketch1.addConstraint(Sketcher.Constraint("Vertical", 49, 3, 55, 3))
sketch1.addConstraint(Sketcher.Constraint("Vertical", 59, 3, 65, 3))
sketch1.addConstraint(Sketcher.Constraint("Vertical", 67, 3, 69, 3))
sketch1.addConstraint(Sketcher.Constraint("Vertical", 52, 3, 72, 3))
sketch1.addConstraint(Sketcher.Constraint("Vertical", 54, 3, 73, 3))
sketch1.addConstraint(Sketcher.Constraint("Vertical", 50, 3, 74, 3))
sketch1.addConstraint(Sketcher.Constraint("Vertical", 51, 3, 75, 3))
sketch1.addConstraint(Sketcher.Constraint("Vertical", 48, 3, 76, 3))
sketch1.addConstraint(Sketcher.Constraint("Vertical", 55, 3, 77, 3))
sketch1.addConstraint(Sketcher.Constraint("Vertical", 57, 3, 81, 3))
sketch1.addConstraint(Sketcher.Constraint("Equal", 16, 32))
sketch1.addConstraint(Sketcher.Constraint("Equal", 12, 2))
sketch1.addConstraint(Sketcher.Constraint("Equal", 6, 14))
sketch1.addConstraint(Sketcher.Constraint("Equal", 2, 18))
sketch1.addConstraint(Sketcher.Constraint("Equal", 36, 22))
sketch1.addConstraint(Sketcher.Constraint("Equal", 26, 42))
sketch1.addConstraint(Sketcher.Constraint("Diameter", 50, 3.0))
sketch1.addConstraint(Sketcher.Constraint("Diameter", 55, 83.0))
sketch1.addConstraint(Sketcher.Constraint("Radius", 1, 5.0))
sketch1.addConstraint(Sketcher.Constraint("Radius", 3, 4.0))
sketch1.addConstraint(Sketcher.Constraint("Diameter", 48, 5.3))
sketch1.addConstraint(Sketcher.Constraint("Diameter", 49, 3.3))
sketch1.addConstraint(Sketcher.Constraint("Diameter", 58, 2.5))
sketch1.addConstraint(Sketcher.Constraint("Radius", 60, 37.5))
sketch1.addConstraint(Sketcher.Constraint("DistanceX", 0, 1, 0, 2, 166.0))
sketch1.addConstraint(Sketcher.Constraint("DistanceX", 4, 2, 4, 1, 20.0))
sketch1.addConstraint(Sketcher.Constraint("DistanceX", 8, 2, 8, 1, 27.0))
sketch1.addConstraint(Sketcher.Constraint("DistanceX", 24, 2, 24, 1, 88.0))
sketch1.addConstraint(Sketcher.Constraint("DistanceX", 28, 2, 28, 1, 46.0))
sketch1.addConstraint(Sketcher.Constraint("DistanceY", 10, 1, 10, 2, 81.0))
sketch1.addConstraint(Sketcher.Constraint("DistanceY", 34, 2, 34, 1, 112.0))
sketch1.addConstraint(Sketcher.Constraint("DistanceX", -1, 1, 48, 3, 10.0))
sketch1.addConstraint(Sketcher.Constraint("DistanceY", 48, 3, -1, 1, 172.0))
sketch1.addConstraint(Sketcher.Constraint("DistanceX", -1, 1, 49, 3, 110.0))
sketch1.addConstraint(Sketcher.Constraint("DistanceY", 53, 3, -1, 1, 96.0))
sketch1.addConstraint(Sketcher.Constraint("DistanceX", -1, 1, 57, 3, 320.0))
sketch1.addConstraint(Sketcher.Constraint("DistanceX", -1, 1, 60, 3, 220.0))
sketch1.addConstraint(Sketcher.Constraint("DistanceX", -1, 1, 62, 3, 255.0))
sketch1.addConstraint(Sketcher.Constraint("DistanceY", 76, 3, -1, 1, 10.0))
sketch1.addConstraint(Sketcher.Constraint("DistanceX", -1, 1, 78, 3, 156.0))
sketch1.addConstraint(Sketcher.Constraint("DistanceX", -1, 1, 80, 3, 174.0))
sketch1.addConstraint(Sketcher.Constraint("DistanceY", 49, 3, -1, 1, 143.5))
sketch1.addConstraint(Sketcher.Constraint("DistanceX", -1, 1, 53, 3, 62.5))
sketch1.addConstraint(Sketcher.Constraint("DistanceX", -1, 1, 56, 3, 157.5))
sketch1.addConstraint(Sketcher.Constraint("DistanceX", -1, 1, 58, 3, 202.5))
sketch1.addConstraint(Sketcher.Constraint("DistanceY", 77, 3, -1, 1, 48.5))
sketch1.addConstraint(Sketcher.Constraint("DistanceY", 78, 3, -1, 1, 46.5))
sketch1.addConstraint(Sketcher.Constraint("DistanceY", 50, 3, -1, 1, 138.036519))
sketch1.addConstraint(Sketcher.Constraint("DistanceX", -1, 1, 52, 3, 67.963481))
sketch1.addConstraint(Sketcher.Constraint("DistanceX", -1, 1, 54, 3, 152.036519))
sketch1.addConstraint(Sketcher.Constraint("DistanceY", 58, 3, -1, 1, 126.310889))
sketch1.addConstraint(Sketcher.Constraint("DistanceY", 74, 3, -1, 1, 53.963481))
sketch1.addConstraint(Sketcher.Constraint("DistanceX", -1, 1, 50, 3, 92.587904))
sketch1.addConstraint(Sketcher.Constraint("DistanceX", -1, 1, 51, 3, 127.412096))
sketch1.addConstraint(Sketcher.Constraint("DistanceY", 52, 3, -1, 1, 113.412096))
sketch1.addConstraint(Sketcher.Constraint("DistanceY", 72, 3, -1, 1, 78.587904))
pad1 = body.newObject("PartDesign::Pad", "Pad")
pad1.Profile = sketch1
pad1.Length = 5
pad1.Reversed = True

doc.recompute()
